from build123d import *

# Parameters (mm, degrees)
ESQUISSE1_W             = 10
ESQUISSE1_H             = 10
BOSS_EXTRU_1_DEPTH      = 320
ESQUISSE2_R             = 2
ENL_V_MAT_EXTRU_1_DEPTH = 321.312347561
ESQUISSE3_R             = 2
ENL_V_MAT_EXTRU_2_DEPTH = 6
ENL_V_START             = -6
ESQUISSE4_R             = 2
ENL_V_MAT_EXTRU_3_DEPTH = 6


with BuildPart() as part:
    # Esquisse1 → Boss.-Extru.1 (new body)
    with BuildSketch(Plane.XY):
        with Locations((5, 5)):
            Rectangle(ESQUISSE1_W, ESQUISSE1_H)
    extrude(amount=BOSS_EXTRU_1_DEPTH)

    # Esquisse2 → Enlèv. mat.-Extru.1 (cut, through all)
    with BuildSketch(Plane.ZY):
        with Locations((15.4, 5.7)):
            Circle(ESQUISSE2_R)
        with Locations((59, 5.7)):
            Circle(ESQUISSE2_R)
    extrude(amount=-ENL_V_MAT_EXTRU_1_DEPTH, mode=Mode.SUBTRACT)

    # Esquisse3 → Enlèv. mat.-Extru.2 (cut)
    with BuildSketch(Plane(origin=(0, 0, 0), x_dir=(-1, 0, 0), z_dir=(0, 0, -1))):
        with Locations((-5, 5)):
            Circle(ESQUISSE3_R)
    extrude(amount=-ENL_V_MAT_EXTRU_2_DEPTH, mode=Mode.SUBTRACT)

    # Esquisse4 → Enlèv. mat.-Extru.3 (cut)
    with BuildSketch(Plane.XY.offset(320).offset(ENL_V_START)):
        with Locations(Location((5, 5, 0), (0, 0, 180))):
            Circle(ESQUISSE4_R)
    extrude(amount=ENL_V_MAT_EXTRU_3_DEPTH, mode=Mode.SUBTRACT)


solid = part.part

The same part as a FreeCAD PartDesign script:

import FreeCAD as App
import Part
import Sketcher

V = App.Vector


def add_polygon(sketch, points):
    """Adds a closed chain of lines whose ends are joined by coincident constraints."""
    first, n = sketch.GeometryCount, len(points)
    for a, b in zip(points, points[1:] + points[:1]):
        sketch.addGeometry(Part.LineSegment(App.Vector(*a, 0), App.Vector(*b, 0)), False)
    for i in range(n):
        sketch.addConstraint(Sketcher.Constraint("Coincident", first + i, 2, first + (i + 1) % n, 1))

doc = App.newDocument("Part")
body = doc.addObject("PartDesign::Body", "Body")

# Sketch on XY plane
sketch1 = body.newObject("Sketcher::SketchObject", "Sketch")
sketch1.AttachmentSupport = (doc.getObject("XY_Plane"), [""])
sketch1.MapMode = "FlatFace"
add_polygon(sketch1, [(0, 10), (0, 0), (10, 0), (10, 10)])  # lines 0-3
sketch1.addConstraint([
    Sketcher.Constraint("Vertical", 0),
    Sketcher.Constraint("Horizontal", 1),
    Sketcher.Constraint("Vertical", 2),
    Sketcher.Constraint("Horizontal", 3),
    Sketcher.Constraint("Coincident", 0, 2, -1, 1),
    Sketcher.Constraint("Equal", 3, 0),
    Sketcher.Constraint("DistanceX", 1, 1, 1, 2, 10.0),
])
pad1 = body.newObject("PartDesign::Pad", "Pad")
pad1.Profile = sketch1
pad1.Length = 320

# Sketch on YZ plane
sketch2 = body.newObject("Sketcher::SketchObject", "Sketch001")
sketch2.AttachmentSupport = (doc.getObject("YZ_Plane"), [""])
sketch2.MapMode = "FlatFace"
sketch2.addGeometry([
    Part.Circle(V(5.7, 15.4, 0), V(0, 0, 1), 2),
    Part.Circle(V(5.7, 59, 0), V(0, 0, 1), 2),
], False)
sketch2.addConstraint([
    Sketcher.Constraint("Equal", 0, 1),
    Sketcher.Constraint("Vertical", 0, 3, 1, 3),
    Sketcher.Constraint("Diameter", 0, 4.0),
    Sketcher.Constraint("DistanceY", -1, 1, 1, 3, 59.0),
    Sketcher.Constraint("DistanceX", -1, 1, 0, 3, 5.7),
    Sketcher.Constraint("DistanceY", -1, 1, 0, 3, 15.4),
])
pocket1 = body.newObject("PartDesign::Pocket", "Pocket")
pocket1.Profile = sketch2
pocket1.Type = "ThroughAll"
pocket1.Reversed = True

# Sketch on XY plane
sketch3 = body.newObject("Sketcher::SketchObject", "Sketch002")
sketch3.AttachmentSupport = (doc.getObject("XY_Plane"), [""])
sketch3.MapMode = "FlatFace"
sketch3.addGeometry(Part.Circle(V(5, 5, 0), V(0, 0, 1), 2), False)
sketch3.addConstraint([
    Sketcher.Constraint("Diameter", 0, 4.0),
    Sketcher.Constraint("DistanceX", -1, 1, 0, 3, 5.0),
    Sketcher.Constraint("DistanceY", -1, 1, 0, 3, 5.0),
])
pocket2 = body.newObject("PartDesign::Pocket", "Pocket001")
pocket2.Profile = sketch3
pocket2.Length = 6
pocket2.Reversed = True

# Sketch on XY plane
sketch4 = body.newObject("Sketcher::SketchObject", "Sketch003")
sketch4.AttachmentSupport = (doc.getObject("XY_Plane"), [""])
sketch4.MapMode = "FlatFace"
sketch4.AttachmentOffset = App.Placement(V(0, 0, 314), App.Rotation())
sketch4.addGeometry(Part.Circle(V(5, 5, 0), V(0, 0, 1), 2), False)
sketch4.addConstraint([
    Sketcher.Constraint("Diameter", 0, 4.0),
    Sketcher.Constraint("DistanceX", -1, 1, 0, 3, 5.0),
    Sketcher.Constraint("DistanceY", -1, 1, 0, 3, 5.0),
])
pocket3 = body.newObject("PartDesign::Pocket", "Pocket002")
pocket3.Profile = sketch4
pocket3.Length = 6
pocket3.Reversed = True

doc.recompute()
